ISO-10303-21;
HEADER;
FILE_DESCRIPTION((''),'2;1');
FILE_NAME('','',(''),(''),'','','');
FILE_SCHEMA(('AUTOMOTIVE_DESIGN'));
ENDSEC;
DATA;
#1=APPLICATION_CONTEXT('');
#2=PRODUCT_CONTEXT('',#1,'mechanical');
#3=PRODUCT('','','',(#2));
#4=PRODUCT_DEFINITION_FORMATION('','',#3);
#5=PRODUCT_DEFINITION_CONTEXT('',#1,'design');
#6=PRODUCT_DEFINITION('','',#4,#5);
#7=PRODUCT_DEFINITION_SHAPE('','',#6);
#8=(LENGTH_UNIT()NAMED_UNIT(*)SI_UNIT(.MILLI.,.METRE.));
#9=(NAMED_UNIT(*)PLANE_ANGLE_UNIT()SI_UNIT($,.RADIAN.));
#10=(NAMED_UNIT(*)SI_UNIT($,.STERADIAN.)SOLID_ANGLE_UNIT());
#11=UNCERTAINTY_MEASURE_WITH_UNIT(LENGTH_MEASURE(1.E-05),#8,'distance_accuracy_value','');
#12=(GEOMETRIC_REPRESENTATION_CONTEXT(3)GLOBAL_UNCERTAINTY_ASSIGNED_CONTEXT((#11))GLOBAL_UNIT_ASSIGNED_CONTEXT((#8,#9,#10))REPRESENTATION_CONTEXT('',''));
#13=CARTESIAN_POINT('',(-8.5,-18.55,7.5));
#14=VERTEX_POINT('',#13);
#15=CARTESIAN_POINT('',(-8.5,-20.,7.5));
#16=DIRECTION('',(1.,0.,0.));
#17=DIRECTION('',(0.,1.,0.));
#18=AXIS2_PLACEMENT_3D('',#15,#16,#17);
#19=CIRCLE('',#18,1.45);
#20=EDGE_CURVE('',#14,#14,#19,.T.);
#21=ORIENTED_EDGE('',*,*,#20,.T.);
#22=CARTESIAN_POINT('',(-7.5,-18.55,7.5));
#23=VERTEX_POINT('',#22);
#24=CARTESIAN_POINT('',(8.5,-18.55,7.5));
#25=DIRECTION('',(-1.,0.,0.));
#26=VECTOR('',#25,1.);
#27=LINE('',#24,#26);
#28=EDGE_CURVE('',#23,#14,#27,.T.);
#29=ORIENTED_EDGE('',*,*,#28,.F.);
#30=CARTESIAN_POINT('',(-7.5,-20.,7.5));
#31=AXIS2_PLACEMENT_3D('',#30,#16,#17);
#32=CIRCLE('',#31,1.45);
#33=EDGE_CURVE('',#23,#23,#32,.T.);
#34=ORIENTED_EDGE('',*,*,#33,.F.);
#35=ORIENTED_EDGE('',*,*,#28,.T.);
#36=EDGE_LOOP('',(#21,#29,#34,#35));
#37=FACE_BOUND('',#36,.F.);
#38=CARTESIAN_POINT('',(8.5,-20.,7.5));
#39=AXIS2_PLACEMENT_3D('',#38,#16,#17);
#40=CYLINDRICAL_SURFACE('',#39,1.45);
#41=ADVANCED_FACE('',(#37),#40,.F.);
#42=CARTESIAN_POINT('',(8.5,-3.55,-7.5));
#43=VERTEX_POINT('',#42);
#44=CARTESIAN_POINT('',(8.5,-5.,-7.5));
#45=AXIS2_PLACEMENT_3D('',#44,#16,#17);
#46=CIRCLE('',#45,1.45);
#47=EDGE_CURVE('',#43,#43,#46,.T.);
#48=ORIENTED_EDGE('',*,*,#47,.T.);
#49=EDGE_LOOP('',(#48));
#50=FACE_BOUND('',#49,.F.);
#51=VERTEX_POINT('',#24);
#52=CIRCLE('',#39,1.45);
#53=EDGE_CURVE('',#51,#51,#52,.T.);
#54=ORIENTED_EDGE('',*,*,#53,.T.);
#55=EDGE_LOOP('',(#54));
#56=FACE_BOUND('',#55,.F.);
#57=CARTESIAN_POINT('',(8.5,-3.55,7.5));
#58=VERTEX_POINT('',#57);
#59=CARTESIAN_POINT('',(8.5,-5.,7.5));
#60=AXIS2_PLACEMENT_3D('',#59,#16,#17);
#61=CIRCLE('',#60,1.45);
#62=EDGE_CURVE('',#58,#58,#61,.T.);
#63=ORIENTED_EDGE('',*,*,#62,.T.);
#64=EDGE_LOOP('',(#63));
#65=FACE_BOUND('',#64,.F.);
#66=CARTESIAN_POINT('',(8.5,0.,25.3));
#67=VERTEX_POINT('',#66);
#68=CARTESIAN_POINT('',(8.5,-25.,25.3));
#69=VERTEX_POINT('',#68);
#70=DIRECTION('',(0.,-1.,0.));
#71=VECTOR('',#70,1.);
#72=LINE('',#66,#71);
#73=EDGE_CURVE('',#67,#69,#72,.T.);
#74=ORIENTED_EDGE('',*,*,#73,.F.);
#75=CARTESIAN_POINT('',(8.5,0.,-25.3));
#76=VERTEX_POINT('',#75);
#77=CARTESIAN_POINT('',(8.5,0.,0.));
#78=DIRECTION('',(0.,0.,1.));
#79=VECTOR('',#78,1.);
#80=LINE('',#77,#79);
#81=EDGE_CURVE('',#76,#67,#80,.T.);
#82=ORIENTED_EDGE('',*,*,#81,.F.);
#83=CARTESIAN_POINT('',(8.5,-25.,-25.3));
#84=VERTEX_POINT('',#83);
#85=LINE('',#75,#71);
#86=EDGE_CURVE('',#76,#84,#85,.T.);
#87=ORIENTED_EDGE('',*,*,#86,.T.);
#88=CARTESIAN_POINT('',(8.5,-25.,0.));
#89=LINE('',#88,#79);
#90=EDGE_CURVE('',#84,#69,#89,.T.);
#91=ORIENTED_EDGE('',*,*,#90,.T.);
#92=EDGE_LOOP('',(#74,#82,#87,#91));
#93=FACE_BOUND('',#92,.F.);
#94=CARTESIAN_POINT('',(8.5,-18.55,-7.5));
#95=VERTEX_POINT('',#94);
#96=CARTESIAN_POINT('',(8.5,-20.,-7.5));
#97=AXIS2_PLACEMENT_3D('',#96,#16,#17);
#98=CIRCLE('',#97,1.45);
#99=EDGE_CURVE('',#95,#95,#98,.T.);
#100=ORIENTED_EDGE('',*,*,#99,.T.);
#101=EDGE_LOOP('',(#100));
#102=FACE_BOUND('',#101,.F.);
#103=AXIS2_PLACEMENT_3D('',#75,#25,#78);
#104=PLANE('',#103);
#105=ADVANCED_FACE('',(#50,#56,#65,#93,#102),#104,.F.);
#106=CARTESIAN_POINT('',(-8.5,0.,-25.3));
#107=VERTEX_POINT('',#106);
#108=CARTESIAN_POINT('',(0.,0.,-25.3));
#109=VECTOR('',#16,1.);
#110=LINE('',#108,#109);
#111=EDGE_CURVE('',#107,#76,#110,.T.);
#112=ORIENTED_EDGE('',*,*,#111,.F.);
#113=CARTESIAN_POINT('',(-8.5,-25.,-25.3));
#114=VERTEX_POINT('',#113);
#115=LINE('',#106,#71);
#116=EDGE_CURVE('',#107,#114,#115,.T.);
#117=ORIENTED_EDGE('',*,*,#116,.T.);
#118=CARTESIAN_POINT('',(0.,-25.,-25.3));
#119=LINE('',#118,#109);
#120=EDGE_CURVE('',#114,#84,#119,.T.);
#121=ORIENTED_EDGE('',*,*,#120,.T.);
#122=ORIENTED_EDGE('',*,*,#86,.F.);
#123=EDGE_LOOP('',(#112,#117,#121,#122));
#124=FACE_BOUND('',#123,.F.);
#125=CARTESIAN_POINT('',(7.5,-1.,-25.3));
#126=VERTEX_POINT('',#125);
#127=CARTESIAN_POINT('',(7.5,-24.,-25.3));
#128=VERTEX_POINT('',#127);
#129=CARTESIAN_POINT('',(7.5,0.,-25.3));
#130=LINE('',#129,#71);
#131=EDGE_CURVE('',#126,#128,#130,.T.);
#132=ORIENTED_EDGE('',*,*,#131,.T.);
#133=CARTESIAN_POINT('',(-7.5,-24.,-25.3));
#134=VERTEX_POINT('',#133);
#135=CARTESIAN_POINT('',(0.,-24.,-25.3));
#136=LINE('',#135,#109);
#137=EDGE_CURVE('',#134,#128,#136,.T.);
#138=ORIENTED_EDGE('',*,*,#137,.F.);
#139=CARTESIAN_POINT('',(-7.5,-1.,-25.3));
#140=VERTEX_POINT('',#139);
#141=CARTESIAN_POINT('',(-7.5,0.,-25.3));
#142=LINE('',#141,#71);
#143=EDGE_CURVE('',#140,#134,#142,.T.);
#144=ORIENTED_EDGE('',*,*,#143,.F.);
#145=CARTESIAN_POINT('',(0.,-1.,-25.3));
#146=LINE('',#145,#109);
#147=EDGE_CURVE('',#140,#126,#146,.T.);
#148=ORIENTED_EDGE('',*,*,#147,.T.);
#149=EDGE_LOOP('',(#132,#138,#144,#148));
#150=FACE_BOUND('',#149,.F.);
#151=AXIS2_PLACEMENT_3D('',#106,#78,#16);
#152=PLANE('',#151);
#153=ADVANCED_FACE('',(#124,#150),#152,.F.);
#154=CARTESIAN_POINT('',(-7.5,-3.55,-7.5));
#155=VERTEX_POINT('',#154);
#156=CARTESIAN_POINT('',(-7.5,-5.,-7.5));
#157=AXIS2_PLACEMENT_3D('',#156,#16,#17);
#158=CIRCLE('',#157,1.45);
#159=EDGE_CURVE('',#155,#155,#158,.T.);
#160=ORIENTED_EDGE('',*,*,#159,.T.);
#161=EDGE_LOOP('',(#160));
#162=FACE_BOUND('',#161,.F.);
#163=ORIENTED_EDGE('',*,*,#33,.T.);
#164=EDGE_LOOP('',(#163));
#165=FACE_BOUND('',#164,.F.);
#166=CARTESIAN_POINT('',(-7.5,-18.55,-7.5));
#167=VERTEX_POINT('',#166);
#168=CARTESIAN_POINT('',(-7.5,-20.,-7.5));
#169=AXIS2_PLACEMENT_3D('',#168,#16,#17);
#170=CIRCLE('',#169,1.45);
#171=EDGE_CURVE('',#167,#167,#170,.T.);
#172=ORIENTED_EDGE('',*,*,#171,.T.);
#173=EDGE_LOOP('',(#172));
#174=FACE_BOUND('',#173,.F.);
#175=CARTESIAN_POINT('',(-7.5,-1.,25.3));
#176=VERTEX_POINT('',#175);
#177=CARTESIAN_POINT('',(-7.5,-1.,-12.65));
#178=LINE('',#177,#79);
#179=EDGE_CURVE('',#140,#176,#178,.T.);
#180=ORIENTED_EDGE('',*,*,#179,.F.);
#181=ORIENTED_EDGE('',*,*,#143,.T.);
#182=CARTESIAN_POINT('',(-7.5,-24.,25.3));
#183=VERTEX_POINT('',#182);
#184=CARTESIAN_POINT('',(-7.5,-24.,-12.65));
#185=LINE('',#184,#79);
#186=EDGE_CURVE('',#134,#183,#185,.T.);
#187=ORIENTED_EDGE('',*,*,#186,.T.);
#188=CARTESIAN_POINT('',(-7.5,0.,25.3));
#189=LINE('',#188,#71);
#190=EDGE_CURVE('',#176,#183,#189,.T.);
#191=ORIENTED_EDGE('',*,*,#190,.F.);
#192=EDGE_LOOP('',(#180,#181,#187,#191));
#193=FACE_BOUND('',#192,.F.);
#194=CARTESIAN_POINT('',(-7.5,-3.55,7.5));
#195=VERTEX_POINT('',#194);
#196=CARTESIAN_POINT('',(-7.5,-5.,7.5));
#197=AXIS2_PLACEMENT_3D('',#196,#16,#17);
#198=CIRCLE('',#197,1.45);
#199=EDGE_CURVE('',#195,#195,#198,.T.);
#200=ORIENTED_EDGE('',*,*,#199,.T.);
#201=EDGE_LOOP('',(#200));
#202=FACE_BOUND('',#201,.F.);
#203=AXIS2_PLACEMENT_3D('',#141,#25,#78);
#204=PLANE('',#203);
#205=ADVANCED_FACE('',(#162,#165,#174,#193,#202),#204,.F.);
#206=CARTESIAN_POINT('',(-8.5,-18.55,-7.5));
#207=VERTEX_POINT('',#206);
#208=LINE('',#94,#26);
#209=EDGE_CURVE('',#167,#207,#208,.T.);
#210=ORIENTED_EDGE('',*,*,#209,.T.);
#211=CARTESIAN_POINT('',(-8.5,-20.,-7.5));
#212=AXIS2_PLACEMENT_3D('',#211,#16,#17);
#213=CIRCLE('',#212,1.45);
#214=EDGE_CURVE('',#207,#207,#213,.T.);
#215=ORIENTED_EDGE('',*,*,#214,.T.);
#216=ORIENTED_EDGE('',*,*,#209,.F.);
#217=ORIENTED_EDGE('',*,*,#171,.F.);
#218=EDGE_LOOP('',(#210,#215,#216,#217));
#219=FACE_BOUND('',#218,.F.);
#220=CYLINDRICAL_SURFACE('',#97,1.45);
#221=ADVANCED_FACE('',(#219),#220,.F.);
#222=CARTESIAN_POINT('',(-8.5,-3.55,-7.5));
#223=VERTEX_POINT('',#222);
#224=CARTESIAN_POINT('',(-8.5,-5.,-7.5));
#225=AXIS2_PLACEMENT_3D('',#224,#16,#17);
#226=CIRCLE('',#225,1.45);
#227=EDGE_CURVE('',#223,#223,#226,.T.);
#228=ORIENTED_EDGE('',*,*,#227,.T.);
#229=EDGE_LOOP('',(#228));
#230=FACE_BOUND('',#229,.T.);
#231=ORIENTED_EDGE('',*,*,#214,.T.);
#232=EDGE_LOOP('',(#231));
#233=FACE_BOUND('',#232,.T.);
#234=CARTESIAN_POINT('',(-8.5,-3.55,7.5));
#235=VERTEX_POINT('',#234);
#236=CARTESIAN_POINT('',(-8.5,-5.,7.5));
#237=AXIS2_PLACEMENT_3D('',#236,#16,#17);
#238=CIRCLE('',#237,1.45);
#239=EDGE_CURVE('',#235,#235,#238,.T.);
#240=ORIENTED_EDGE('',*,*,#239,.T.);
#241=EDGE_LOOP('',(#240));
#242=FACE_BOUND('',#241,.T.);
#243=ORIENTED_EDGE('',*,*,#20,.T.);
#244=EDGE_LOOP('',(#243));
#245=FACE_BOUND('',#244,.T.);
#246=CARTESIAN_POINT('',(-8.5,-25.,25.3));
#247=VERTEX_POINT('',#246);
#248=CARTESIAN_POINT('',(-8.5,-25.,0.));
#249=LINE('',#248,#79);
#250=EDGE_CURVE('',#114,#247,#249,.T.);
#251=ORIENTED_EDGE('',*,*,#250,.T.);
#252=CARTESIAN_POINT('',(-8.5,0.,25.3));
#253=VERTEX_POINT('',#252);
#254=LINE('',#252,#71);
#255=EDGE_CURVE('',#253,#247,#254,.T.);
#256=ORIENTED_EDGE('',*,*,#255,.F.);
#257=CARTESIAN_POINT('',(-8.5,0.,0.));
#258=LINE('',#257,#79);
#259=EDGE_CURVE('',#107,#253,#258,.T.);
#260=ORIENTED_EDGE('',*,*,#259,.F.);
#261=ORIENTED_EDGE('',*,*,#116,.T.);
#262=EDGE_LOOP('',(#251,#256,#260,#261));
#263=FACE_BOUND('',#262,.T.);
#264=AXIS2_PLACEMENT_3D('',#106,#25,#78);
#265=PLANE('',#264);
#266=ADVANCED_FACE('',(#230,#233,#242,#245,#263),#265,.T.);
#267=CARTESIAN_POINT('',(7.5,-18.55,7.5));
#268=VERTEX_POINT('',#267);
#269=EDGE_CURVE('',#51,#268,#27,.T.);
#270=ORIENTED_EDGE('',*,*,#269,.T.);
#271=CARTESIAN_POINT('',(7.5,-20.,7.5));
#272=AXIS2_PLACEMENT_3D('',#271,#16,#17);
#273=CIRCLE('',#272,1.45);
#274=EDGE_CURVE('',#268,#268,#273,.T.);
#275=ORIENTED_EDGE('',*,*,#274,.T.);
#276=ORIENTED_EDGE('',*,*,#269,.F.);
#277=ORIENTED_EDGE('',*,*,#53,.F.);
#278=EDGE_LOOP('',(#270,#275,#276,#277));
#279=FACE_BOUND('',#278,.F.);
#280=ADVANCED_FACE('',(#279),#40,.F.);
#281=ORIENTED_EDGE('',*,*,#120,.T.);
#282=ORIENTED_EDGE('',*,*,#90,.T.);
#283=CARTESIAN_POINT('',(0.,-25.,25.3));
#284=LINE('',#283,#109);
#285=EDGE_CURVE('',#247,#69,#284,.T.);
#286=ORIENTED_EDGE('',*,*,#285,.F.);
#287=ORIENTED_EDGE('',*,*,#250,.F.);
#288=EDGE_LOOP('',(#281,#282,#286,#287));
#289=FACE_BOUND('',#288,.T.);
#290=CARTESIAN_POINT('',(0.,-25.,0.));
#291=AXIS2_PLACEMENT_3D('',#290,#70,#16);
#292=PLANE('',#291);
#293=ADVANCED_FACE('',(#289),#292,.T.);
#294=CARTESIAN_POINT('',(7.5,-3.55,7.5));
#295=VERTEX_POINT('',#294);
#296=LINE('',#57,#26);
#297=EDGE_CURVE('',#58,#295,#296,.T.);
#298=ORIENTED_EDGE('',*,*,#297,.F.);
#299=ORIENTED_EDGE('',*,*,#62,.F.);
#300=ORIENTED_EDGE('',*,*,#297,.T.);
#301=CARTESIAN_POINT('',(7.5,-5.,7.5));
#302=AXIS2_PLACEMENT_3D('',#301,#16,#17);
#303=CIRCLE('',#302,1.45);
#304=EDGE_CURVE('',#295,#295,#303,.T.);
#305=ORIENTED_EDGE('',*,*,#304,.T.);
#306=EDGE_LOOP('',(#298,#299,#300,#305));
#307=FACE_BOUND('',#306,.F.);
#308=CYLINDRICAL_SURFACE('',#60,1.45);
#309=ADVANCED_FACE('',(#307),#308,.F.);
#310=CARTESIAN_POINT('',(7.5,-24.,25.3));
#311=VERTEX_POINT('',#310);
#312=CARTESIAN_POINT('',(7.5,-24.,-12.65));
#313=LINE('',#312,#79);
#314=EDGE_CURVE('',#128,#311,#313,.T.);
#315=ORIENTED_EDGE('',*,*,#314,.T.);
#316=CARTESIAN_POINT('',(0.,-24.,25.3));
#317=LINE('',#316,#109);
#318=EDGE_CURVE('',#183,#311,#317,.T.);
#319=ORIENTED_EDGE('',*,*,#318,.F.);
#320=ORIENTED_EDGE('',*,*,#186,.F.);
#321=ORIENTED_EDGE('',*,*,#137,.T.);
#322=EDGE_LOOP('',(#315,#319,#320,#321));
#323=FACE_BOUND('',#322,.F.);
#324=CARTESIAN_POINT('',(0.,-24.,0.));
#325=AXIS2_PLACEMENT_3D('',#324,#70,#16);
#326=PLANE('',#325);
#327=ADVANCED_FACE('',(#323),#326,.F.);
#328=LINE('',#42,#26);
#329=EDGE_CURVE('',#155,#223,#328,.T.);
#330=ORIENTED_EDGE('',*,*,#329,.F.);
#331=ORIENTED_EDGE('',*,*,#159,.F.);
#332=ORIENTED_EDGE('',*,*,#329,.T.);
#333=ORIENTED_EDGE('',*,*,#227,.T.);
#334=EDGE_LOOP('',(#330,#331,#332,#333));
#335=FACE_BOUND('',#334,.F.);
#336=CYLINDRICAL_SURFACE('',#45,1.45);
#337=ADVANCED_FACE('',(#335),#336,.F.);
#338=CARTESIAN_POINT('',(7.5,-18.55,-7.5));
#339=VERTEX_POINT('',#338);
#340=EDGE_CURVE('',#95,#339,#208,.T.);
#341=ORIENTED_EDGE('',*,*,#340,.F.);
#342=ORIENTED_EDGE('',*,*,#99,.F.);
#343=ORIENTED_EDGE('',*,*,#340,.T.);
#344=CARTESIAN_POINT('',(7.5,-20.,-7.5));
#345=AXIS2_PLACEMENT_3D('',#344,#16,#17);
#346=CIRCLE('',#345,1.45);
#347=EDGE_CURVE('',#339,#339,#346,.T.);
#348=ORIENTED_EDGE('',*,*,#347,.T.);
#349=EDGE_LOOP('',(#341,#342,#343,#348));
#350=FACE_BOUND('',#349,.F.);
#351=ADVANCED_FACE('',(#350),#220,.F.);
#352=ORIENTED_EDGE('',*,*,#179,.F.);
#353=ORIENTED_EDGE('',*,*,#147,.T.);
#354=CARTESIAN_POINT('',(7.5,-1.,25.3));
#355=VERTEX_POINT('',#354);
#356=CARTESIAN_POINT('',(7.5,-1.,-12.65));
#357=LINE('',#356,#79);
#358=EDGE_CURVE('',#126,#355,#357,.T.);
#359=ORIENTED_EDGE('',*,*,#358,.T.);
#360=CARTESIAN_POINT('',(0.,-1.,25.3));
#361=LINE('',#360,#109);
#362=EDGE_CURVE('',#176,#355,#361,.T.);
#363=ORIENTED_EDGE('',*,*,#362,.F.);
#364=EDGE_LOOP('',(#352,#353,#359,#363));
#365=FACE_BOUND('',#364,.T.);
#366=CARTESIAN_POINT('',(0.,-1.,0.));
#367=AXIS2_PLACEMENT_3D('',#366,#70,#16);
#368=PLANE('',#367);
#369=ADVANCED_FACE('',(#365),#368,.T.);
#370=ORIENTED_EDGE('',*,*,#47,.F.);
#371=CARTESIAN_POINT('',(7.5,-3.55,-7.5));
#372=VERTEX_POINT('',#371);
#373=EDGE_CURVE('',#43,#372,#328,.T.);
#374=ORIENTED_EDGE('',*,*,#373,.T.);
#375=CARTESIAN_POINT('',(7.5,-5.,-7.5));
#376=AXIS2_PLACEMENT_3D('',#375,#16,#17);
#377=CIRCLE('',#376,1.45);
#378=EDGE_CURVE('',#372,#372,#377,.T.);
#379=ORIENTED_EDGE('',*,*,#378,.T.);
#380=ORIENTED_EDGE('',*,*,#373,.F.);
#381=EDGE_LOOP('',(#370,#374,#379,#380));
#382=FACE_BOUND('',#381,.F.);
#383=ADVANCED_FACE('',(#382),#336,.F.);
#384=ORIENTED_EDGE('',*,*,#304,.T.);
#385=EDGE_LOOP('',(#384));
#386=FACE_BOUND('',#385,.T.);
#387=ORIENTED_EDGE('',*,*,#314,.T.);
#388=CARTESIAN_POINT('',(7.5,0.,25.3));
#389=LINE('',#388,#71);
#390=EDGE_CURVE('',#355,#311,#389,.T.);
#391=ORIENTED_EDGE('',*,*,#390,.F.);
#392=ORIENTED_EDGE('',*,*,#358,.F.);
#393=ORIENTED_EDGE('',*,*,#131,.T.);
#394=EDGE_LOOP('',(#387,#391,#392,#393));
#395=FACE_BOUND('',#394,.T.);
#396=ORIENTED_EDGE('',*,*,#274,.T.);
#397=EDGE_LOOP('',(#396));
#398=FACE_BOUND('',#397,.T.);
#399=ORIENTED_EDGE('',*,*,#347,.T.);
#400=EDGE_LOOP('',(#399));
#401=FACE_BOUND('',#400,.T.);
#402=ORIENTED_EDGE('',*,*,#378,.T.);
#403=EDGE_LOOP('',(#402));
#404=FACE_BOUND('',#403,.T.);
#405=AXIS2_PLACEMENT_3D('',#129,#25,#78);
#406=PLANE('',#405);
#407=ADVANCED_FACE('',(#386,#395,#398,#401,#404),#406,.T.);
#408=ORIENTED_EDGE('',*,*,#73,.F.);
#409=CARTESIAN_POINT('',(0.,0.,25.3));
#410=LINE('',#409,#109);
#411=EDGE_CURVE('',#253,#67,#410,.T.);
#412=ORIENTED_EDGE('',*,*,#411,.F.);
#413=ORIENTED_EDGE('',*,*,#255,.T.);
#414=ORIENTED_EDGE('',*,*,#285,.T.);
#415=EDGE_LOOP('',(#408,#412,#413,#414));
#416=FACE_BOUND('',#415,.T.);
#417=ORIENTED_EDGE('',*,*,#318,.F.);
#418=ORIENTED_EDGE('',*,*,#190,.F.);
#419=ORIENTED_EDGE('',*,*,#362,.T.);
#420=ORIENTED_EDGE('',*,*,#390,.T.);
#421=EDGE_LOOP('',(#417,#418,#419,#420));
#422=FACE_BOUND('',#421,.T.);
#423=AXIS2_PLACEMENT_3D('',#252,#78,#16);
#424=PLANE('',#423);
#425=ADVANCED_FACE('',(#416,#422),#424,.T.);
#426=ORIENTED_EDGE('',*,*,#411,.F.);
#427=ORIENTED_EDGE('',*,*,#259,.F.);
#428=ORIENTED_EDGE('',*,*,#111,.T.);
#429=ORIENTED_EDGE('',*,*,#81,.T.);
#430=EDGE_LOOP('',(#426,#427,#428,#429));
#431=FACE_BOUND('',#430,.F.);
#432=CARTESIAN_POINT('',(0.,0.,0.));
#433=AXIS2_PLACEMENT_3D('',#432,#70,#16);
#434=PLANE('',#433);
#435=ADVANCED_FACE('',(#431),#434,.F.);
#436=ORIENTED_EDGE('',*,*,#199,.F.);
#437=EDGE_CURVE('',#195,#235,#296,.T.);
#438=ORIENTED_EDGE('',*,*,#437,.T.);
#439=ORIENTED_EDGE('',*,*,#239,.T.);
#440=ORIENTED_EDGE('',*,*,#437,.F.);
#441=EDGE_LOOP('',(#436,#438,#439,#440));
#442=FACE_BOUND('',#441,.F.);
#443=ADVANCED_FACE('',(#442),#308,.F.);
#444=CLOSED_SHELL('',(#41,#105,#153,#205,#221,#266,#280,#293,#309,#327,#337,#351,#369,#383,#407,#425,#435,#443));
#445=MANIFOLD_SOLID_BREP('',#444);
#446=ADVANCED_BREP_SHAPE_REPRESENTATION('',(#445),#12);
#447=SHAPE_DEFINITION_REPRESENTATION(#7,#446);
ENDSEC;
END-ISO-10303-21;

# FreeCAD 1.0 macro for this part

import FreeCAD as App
import Part
import Sketcher

V = App.Vector
Q = App.Units.Quantity


def faces_at(feature, points):
    """Names of the faces that lie closest to the given points."""
    faces = feature.Shape.Faces
    near = lambda p: min(range(len(faces)), key=lambda i: faces[i].distToShape(Part.Vertex(*p))[0])
    return sorted({f"Face{near(p) + 1}" for p in points})


def add_polygon(sketch, points):
    """Adds a closed chain of lines whose ends are joined by coincident constraints."""
    first, n = sketch.GeometryCount, len(points)
    for a, b in zip(points, points[1:] + points[:1]):
        sketch.addGeometry(Part.LineSegment(App.Vector(*a, 0), App.Vector(*b, 0)), False)
    for i in range(n):
        sketch.addConstraint(Sketcher.Constraint("Coincident", first + i, 2, first + (i + 1) % n, 1))

doc = App.newDocument("Part")
params = doc.addObject("Spreadsheet::Sheet", "Params")
for row, (alias, value) in enumerate([
    ("sketch1_width", "17 mm"),
    ("sketch1_height", "50.6 mm"),
    ("pad1_length", "25 mm"),
    ("thickness_wall", "1 mm"),
    ("sketch2_diameter", "2.9 mm"),
    ("pocket1_length", "25 mm"),
], start=1):
    params.set(f"A{row}", alias)
    params.set(f"B{row}", "=" + value)
    params.setAlias(f"B{row}", alias)

body = doc.addObject("PartDesign::Body", "Body")

# Sketch on XZ plane
sketch1 = body.newObject("Sketcher::SketchObject", "Sketch")
sketch1.AttachmentSupport = (doc.getObject("XZ_Plane"), [""])
sketch1.MapMode = "FlatFace"
add_polygon(sketch1, [(-8, 25), (-8, -25), (8, -25), (8, 25)])  # lines 0-3
sketch1.addConstraint(Sketcher.Constraint("Vertical", 0))
sketch1.addConstraint(Sketcher.Constraint("Horizontal", 1))
sketch1.addConstraint(Sketcher.Constraint("Vertical", 2))
sketch1.addConstraint(Sketcher.Constraint("Horizontal", 3))
sketch1.addConstraint(Sketcher.Constraint("Symmetric", 0, 2, 2, 2, -1, 1))
sketch1.addConstraint(Sketcher.Constraint("DistanceX", 1, 1, 1, 2, Q("17 mm")))
sketch1.addConstraint(Sketcher.Constraint("DistanceY", 0, 2, 0, 1, Q("50.6 mm")))
sketch1.setExpression("Constraints[9]", "Params.sketch1_width")
sketch1.setExpression("Constraints[10]", "Params.sketch1_height")
pad1 = body.newObject("PartDesign::Pad", "Pad")
pad1.Profile = sketch1
pad1.setExpression("Length", "Params.pad1_length")
doc.recompute()

thickness = body.newObject("PartDesign::Thickness", "Thickness")
thickness.Base = (pad1, faces_at(pad1, [(0, -12.5, 25.3), (0, -12.5, -25.3)]))
thickness.setExpression("Value", "Params.thickness_wall")
thickness.Reversed = True
thickness.Join = "Arc"

# Sketch on YZ plane
sketch2 = body.newObject("Sketcher::SketchObject", "Sketch001")
sketch2.AttachmentSupport = (doc.getObject("YZ_Plane"), [""])
sketch2.MapMode = "FlatFace"
sketch2.AttachmentOffset = App.Placement(V(0, 0, 8.5), App.Rotation())
sketch2.addGeometry(Part.Circle(V(-5, 7.5, 0), V(0, 0, 1), 1.4), False)
sketch2.addGeometry(Part.Circle(V(-20, 7.5, 0), V(0, 0, 1), 1.4), False)
sketch2.addGeometry(Part.Circle(V(-20, -7.5, 0), V(0, 0, 1), 1.4), False)
sketch2.addGeometry(Part.Circle(V(-5, -7.5, 0), V(0, 0, 1), 1.4), False)
sketch2.addConstraint(Sketcher.Constraint("Equal", 0, 1))
sketch2.addConstraint(Sketcher.Constraint("Equal", 1, 2))
sketch2.addConstraint(Sketcher.Constraint("Equal", 2, 3))
sketch2.addConstraint(Sketcher.Constraint("Symmetric", 1, 3, 2, 3, -1))
sketch2.addConstraint(Sketcher.Constraint("Symmetric", 0, 3, 3, 3, -1))
sketch2.addConstraint(Sketcher.Constraint("Horizontal", 0, 3, 1, 3))
sketch2.addConstraint(Sketcher.Constraint("Diameter", 0, Q("2.9 mm")))
sketch2.addConstraint(Sketcher.Constraint("DistanceX", 0, 3, -1, 1, Q("5 mm")))
sketch2.addConstraint(Sketcher.Constraint("DistanceX", 1, 3, -1, 1, Q("20 mm")))
sketch2.addConstraint(Sketcher.Constraint("DistanceY", 2, 3, 1, 3, Q("15 mm")))
sketch2.setExpression("Constraints[6]", "Params.sketch2_diameter")
pocket1 = body.newObject("PartDesign::Pocket", "Pocket")
pocket1.Profile = sketch2
pocket1.setExpression("Length", "Params.pocket1_length")

doc.recompute()
